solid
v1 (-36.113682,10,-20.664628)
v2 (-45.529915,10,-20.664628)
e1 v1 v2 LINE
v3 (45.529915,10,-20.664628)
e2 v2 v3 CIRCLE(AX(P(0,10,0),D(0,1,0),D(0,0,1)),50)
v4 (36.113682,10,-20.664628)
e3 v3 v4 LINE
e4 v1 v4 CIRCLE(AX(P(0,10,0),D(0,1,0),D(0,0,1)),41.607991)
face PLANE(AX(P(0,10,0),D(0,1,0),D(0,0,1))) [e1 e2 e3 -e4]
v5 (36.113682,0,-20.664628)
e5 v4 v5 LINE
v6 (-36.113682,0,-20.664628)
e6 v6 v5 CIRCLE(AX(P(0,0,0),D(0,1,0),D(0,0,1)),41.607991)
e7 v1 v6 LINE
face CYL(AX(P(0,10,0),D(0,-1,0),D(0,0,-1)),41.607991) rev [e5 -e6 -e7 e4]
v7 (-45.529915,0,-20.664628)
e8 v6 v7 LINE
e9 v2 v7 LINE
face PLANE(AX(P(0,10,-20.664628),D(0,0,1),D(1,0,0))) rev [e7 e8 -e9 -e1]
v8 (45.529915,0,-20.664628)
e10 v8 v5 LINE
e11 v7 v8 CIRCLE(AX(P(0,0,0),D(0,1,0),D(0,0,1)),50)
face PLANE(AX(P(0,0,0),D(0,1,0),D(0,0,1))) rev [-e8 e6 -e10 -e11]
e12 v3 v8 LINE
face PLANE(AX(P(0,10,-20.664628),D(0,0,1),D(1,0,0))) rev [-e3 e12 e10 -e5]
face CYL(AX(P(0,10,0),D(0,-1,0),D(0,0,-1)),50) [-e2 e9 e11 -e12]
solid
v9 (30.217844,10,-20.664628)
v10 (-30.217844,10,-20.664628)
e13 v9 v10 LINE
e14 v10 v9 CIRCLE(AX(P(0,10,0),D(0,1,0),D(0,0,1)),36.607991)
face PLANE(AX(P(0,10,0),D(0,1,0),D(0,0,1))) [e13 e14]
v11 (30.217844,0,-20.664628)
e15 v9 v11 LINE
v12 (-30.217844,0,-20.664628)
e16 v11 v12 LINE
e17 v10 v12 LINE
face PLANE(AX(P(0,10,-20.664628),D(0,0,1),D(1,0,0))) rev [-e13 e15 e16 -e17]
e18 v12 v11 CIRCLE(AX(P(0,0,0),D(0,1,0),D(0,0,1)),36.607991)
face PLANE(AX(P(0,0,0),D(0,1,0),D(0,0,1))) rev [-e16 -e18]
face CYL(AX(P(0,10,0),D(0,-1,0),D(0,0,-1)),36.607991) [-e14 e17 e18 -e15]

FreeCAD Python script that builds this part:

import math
import FreeCAD as App
import Part
import Sketcher

V = App.Vector
Q = App.Units.Quantity

doc = App.newDocument("Part")
params = doc.addObject("Spreadsheet::Sheet", "Params")
for row, (alias, value) in enumerate([
    ("pad1_length", "10 mm"),
    ("sketch2_radius", "50 mm"),
    ("pad2_length", "10 mm"),
], start=1):
    params.set(f"A{row}", alias)
    params.set(f"B{row}", "=" + value)
    params.setAlias(f"B{row}", alias)

body = doc.addObject("PartDesign::Body", "Body")

sketch1 = doc.addObject("Sketcher::SketchObject", "Sketch")
body.addObject(sketch1)
sketch1.AttachmentSupport = (doc.XZ_Plane, [""])
sketch1.MapMode = "FlatFace"
sketch1.addGeometry([
    Part.ArcOfCircle(Part.Circle(V(0, 0, 0), V(0, 0, 1), 37), math.radians(-34), math.radians(214)),
    Part.LineSegment(V(30, -21, 0), V(-30, -21, 0)),
], False)
sketch1.addConstraint([
    Sketcher.Constraint("Coincident", 0, 1, 1, 1),
    Sketcher.Constraint("Coincident", 1, 2, 0, 2),
    Sketcher.Constraint("Horizontal", 1),
    Sketcher.Constraint("Coincident", 0, 3, -1, 1),
    Sketcher.Constraint("Radius", 0, Q("36.607991 mm")),
    Sketcher.Constraint("DistanceX", 1, 2, 1, 1, Q("60.435689 mm")),
])
pad1 = doc.addObject("PartDesign::Pad", "Pad")
body.addObject(pad1)
pad1.Profile = sketch1
pad1.setExpression("Length", "Params.pad1_length")
pad1.Reversed = True
body2 = doc.addObject("PartDesign::Body", "Body001")

sketch2 = doc.addObject("Sketcher::SketchObject", "Sketch001")
body2.addObject(sketch2)
sketch2.AttachmentSupport = (doc.getObject("XZ_Plane001"), [""])
sketch2.MapMode = "FlatFace"
sketch2.addGeometry([
    Part.ArcOfCircle(Part.Circle(V(0, 0, 0), V(0, 0, 1), 50), math.radians(-24), math.radians(204)),
    Part.LineSegment(V(46, -21, 0), V(36, -21, 0)),
    Part.ArcOfCircle(Part.Circle(V(0, 0, 0), V(0, 0, 1), 42), math.radians(-30), math.radians(210)),
    Part.LineSegment(V(-36, -21, 0), V(-46, -21, 0)),
], False)
sketch2.addConstraint([
    Sketcher.Constraint("Coincident", 0, 1, 1, 1),
    Sketcher.Constraint("Coincident", 1, 2, 2, 1),
    Sketcher.Constraint("Coincident", 2, 2, 3, 1),
    Sketcher.Constraint("Coincident", 3, 2, 0, 2),
    Sketcher.Constraint("Horizontal", 1),
    Sketcher.Constraint("Horizontal", 3),
    Sketcher.Constraint("Coincident", 0, 3, -1, 1),
    Sketcher.Constraint("Coincident", 2, 3, -1, 1),
    Sketcher.Constraint("Horizontal", 1, 2, 2, 2),
    Sketcher.Constraint("Radius", 0, Q("50 mm")),
    Sketcher.Constraint("Radius", 2, Q("41.607991 mm")),
    Sketcher.Constraint("DistanceX", 1, 2, 1, 1, Q("9.416233 mm")),
])
sketch2.setExpression("Constraints[9]", "Params.sketch2_radius")
pad2 = doc.addObject("PartDesign::Pad", "Pad001")
body2.addObject(pad2)
pad2.Profile = sketch2
pad2.setExpression("Length", "Params.pad2_length")
pad2.Reversed = True

doc.recompute()
